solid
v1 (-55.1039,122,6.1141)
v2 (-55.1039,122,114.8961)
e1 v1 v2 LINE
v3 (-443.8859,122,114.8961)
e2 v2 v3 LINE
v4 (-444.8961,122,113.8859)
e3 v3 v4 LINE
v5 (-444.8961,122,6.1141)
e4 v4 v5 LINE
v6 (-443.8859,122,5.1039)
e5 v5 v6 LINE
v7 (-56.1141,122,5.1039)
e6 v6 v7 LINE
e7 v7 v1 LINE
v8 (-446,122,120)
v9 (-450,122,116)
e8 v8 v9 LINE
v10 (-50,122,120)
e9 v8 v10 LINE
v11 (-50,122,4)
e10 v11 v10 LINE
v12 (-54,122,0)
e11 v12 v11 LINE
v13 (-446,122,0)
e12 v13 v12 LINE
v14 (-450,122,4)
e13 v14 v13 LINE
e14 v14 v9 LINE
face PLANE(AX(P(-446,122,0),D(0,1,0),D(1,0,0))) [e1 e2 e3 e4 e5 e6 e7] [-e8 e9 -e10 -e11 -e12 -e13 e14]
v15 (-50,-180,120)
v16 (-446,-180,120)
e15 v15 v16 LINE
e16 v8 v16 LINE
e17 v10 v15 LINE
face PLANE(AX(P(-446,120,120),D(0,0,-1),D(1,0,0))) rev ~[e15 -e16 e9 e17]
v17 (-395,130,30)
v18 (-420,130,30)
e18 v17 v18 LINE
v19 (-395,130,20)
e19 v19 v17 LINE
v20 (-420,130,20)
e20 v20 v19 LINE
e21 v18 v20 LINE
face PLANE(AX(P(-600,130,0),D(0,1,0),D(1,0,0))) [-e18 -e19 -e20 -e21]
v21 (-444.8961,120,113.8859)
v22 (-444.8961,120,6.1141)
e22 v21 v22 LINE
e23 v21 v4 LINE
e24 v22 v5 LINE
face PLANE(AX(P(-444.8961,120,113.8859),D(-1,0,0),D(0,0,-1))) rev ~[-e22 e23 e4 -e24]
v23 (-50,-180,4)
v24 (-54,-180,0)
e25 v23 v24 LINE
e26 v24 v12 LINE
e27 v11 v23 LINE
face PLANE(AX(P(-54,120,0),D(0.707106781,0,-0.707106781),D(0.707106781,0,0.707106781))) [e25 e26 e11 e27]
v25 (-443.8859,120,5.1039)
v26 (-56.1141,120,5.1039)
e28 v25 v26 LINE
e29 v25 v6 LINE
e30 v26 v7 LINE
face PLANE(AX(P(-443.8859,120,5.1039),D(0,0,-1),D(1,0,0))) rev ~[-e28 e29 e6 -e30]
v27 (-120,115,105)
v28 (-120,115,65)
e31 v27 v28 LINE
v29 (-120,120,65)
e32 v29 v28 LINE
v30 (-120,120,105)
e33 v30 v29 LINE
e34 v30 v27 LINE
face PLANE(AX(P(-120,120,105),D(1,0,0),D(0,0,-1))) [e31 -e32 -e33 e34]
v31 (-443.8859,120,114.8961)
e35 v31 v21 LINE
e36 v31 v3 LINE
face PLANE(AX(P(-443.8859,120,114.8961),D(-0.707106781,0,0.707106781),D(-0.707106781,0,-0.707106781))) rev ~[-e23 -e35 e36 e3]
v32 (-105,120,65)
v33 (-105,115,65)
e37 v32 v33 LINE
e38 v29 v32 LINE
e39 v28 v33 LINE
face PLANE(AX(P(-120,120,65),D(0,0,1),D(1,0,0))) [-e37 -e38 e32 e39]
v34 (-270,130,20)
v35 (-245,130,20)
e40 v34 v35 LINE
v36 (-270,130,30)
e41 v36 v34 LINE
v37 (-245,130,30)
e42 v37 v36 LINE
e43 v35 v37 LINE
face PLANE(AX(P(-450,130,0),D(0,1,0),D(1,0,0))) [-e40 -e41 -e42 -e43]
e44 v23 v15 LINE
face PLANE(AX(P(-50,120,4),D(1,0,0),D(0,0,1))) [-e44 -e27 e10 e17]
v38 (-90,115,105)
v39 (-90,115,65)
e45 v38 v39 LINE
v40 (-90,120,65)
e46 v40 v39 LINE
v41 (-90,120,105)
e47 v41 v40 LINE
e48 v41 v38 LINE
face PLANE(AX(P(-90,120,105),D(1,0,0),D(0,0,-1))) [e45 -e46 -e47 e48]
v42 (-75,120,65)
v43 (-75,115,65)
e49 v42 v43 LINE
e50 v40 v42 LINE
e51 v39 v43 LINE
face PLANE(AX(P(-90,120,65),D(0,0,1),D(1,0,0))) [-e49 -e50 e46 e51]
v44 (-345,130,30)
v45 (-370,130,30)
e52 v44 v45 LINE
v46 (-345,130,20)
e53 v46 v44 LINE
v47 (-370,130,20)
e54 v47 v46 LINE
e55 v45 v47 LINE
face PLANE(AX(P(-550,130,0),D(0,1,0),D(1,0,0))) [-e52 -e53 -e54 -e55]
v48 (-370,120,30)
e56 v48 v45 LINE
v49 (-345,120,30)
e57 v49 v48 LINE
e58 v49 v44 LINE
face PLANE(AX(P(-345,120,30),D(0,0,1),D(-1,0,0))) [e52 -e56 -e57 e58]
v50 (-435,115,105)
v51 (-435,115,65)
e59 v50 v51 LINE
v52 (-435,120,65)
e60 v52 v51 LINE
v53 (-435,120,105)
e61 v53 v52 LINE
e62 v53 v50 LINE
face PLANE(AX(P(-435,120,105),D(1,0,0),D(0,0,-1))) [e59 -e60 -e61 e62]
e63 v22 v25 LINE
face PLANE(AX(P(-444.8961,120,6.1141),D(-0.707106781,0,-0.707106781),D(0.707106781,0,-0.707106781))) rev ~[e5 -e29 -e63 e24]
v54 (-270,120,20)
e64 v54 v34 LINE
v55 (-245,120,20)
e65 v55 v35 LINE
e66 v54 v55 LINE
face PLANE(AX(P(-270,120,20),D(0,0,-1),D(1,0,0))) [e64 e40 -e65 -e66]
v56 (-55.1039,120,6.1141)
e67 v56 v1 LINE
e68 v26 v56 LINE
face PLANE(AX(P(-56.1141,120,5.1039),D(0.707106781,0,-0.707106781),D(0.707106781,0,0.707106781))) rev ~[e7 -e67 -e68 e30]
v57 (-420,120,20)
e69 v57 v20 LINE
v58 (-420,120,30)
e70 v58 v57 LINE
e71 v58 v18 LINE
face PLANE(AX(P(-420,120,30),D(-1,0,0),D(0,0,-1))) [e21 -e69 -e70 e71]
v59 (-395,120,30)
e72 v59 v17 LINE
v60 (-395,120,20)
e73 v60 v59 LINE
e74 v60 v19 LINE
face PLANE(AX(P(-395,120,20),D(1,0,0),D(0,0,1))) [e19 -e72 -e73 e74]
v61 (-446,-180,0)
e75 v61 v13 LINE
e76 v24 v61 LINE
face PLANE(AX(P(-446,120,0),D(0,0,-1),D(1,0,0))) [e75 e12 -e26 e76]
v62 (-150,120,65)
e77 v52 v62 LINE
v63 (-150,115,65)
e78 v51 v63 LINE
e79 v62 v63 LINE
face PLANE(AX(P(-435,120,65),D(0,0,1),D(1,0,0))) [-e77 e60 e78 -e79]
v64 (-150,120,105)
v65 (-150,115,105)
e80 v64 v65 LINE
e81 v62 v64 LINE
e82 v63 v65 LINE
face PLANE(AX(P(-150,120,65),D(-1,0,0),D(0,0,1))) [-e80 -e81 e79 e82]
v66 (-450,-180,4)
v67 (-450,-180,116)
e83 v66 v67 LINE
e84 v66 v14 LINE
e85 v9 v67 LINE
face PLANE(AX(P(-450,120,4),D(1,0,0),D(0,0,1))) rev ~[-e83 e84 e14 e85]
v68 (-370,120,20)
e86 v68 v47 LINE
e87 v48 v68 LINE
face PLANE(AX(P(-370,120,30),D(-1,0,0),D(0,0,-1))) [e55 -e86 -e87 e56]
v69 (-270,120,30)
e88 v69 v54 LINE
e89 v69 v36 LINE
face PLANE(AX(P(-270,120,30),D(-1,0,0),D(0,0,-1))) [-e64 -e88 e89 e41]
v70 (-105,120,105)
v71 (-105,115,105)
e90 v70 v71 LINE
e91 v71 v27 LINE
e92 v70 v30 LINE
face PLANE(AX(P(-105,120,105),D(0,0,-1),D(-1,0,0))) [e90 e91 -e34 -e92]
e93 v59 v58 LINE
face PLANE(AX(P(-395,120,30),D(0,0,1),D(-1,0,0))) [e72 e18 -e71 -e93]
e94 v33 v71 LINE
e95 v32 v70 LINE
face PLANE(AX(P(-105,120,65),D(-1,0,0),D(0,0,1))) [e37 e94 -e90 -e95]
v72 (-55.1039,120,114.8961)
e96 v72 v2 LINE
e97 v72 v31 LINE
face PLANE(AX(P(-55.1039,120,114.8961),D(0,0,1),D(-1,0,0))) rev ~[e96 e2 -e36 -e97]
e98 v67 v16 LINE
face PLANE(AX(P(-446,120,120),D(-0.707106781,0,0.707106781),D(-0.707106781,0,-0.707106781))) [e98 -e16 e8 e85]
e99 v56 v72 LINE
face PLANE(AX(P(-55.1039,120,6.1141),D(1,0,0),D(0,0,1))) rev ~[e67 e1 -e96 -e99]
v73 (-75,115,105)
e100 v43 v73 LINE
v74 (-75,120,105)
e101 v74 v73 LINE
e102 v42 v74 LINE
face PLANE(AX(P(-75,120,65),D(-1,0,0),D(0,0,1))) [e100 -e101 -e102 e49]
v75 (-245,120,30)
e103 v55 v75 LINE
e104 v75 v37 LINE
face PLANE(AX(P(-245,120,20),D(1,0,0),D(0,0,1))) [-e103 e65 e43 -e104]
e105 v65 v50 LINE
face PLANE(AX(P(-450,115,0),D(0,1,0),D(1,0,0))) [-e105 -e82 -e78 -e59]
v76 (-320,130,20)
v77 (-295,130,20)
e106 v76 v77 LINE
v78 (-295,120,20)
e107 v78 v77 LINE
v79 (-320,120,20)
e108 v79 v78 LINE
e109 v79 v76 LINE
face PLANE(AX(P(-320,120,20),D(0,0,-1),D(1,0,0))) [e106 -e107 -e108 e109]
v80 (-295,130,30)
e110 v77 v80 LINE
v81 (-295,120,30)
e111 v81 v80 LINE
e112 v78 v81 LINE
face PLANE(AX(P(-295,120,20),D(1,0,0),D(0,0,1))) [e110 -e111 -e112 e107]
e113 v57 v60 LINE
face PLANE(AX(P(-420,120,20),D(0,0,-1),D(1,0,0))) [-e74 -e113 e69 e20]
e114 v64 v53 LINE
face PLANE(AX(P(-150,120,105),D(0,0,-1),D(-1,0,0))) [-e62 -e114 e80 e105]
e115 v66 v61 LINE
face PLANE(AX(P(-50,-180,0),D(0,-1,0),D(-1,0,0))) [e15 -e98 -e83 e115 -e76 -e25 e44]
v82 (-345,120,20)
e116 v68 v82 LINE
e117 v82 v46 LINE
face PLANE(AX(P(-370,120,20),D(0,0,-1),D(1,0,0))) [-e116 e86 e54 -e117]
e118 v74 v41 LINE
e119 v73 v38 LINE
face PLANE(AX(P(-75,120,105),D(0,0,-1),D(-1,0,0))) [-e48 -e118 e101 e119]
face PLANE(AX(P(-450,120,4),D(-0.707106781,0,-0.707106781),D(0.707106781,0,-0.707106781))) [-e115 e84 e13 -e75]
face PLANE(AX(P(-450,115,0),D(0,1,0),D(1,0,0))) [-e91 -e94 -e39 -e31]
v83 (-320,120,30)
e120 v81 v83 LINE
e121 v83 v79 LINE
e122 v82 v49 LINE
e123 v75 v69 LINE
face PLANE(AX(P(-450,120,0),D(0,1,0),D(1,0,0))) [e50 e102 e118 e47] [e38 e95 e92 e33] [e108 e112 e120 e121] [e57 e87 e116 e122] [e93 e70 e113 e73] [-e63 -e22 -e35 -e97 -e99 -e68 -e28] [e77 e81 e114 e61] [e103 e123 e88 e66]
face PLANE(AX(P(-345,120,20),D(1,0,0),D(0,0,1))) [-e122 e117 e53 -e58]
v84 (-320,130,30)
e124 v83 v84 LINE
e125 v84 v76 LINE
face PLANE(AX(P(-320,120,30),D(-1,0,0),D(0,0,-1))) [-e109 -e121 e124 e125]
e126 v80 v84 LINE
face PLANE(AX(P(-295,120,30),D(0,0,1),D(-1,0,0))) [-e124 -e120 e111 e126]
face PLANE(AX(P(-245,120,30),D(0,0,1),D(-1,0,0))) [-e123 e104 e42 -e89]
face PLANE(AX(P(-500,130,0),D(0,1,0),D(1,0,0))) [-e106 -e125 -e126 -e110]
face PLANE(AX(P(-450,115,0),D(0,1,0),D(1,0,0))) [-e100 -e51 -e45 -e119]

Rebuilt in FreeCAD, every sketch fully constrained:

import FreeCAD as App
import Part
import Sketcher
from FreeCAD import Vector


def edges_at(feature, points):
    """Names of the edges that pass closest to the given points."""
    edges = feature.Shape.Edges
    near = lambda p: min(range(len(edges)), key=lambda i: edges[i].distToShape(Part.Vertex(*p))[0])
    return sorted({f"Edge{near(p) + 1}" for p in points})


def add_polygon(sketch, points):
    """Adds a closed chain of lines whose ends are joined by coincident constraints."""
    first, n = sketch.GeometryCount, len(points)
    for a, b in zip(points, points[1:] + points[:1]):
        sketch.addGeometry(Part.LineSegment(App.Vector(*a, 0), App.Vector(*b, 0)), False)
    for i in range(n):
        sketch.addConstraint(Sketcher.Constraint("Coincident", first + i, 2, first + (i + 1) % n, 1))

doc = App.newDocument("Part")
params = doc.addObject("Spreadsheet::Sheet", "Params")
for row, (alias, value) in enumerate([
    ("sketch1_width", "400 mm"),
    ("sketch1_height", "300 mm"),
    ("pad1_length", "120 mm"),
    ("sketch2_width", "25 mm"),
    ("sketch2_height", "10 mm"),
    ("pad2_length", "10 mm"),
    ("linearpattern_pitch", "50 mm"),
    ("sketch3_width", "15 mm"),
    ("sketch3_width2", "285 mm"),
    ("sketch3_height", "40 mm"),
    ("pocket1_length", "5 mm"),
    ("chamfer_size", "4 mm"),
    ("sketch4_width", "392 mm"),
    ("sketch4_width2", "396 mm"),
    ("sketch4_height", "112 mm"),
    ("pad3_length", "2 mm"),
], start=1):
    params.set(f"A{row}", alias)
    params.set(f"B{row}", "=" + value)
    params.setAlias(f"B{row}", alias)

body = doc.addObject("PartDesign::Body", "Body")

sketch1 = doc.addObject("Sketcher::SketchObject", "Sketch")
body.addObject(sketch1)
sketch1.AttachmentSupport = (doc.XY_Plane, [""])
sketch1.MapMode = "FlatFace"
add_polygon(sketch1, [(-450, -180), (-50, -180), (-50, 120), (-450, 120)])
sketch1.addConstraint([
    Sketcher.Constraint("Horizontal", 0),
    Sketcher.Constraint("Vertical", 1),
    Sketcher.Constraint("Horizontal", 2),
    Sketcher.Constraint("Vertical", 3),
    Sketcher.Constraint("DistanceX", 0, 1, 0, 2, 400.0),
    Sketcher.Constraint("DistanceY", 1, 1, 1, 2, 300.0),
    Sketcher.Constraint("DistanceX", 0, 2, -1, 1, 50.0),
    Sketcher.Constraint("DistanceY", -1, 1, 1, 2, 120.0),
])
sketch1.setExpression("Constraints[8]", "Params.sketch1_width")
sketch1.setExpression("Constraints[9]", "Params.sketch1_height")
pad1 = doc.addObject("PartDesign::Pad", "Pad")
body.addObject(pad1)
pad1.Profile = sketch1
pad1.setExpression("Length", "Params.pad1_length")

sketch2 = doc.addObject("Sketcher::SketchObject", "Sketch001")
body.addObject(sketch2)
sketch2.AttachmentSupport = (doc.XZ_Plane, [""])
sketch2.MapMode = "FlatFace"
sketch2.AttachmentOffset = App.Placement(Vector(0, 0, -120), App.Rotation())
add_polygon(sketch2, [(-270, 30), (-245, 30), (-245, 20), (-270, 20)])
sketch2.addConstraint([
    Sketcher.Constraint("Horizontal", 0),
    Sketcher.Constraint("Vertical", 1),
    Sketcher.Constraint("Horizontal", 2),
    Sketcher.Constraint("Vertical", 3),
    Sketcher.Constraint("DistanceX", 0, 1, 0, 2, 25.0),
    Sketcher.Constraint("DistanceY", 1, 2, 1, 1, 10.0),
    Sketcher.Constraint("DistanceY", -1, 1, 1, 2, 20.0),
    Sketcher.Constraint("DistanceX", 0, 2, -1, 1, 245.0),
])
sketch2.setExpression("Constraints[8]", "Params.sketch2_width")
sketch2.setExpression("Constraints[9]", "Params.sketch2_height")
pad2 = doc.addObject("PartDesign::Pad", "Pad001")
body.addObject(pad2)
pad2.Profile = sketch2
pad2.setExpression("Length", "Params.pad2_length")
pad2.Reversed = True
doc.recompute()

linearpattern = doc.addObject("PartDesign::LinearPattern", "LinearPattern")
body.addObject(linearpattern)
linearpattern.Originals = [pad2]
linearpattern.Direction = (doc.X_Axis, [""])
linearpattern.Mode = "offset"
linearpattern.setExpression("Offset", "Params.linearpattern_pitch")
linearpattern.Occurrences = 4
linearpattern.Reversed = True
body.Tip = linearpattern

sketch3 = doc.addObject("Sketcher::SketchObject", "Sketch002")
body.addObject(sketch3)
sketch3.AttachmentSupport = (doc.XZ_Plane, [""])
sketch3.MapMode = "FlatFace"
sketch3.AttachmentOffset = App.Placement(Vector(0, 0, -120), App.Rotation())
add_polygon(sketch3, [(-150, 65), (-435, 65), (-435, 105), (-150, 105)])
add_polygon(sketch3, [(-105, 65), (-120, 65), (-120, 105), (-105, 105)])
add_polygon(sketch3, [(-75, 65), (-90, 65), (-90, 105), (-75, 105)])
sketch3.addConstraint([
    Sketcher.Constraint("Horizontal", 0),
    Sketcher.Constraint("Vertical", 1),
    Sketcher.Constraint("Horizontal", 2),
    Sketcher.Constraint("Vertical", 3),
    Sketcher.Constraint("Horizontal", 4),
    Sketcher.Constraint("Vertical", 5),
    Sketcher.Constraint("Horizontal", 6),
    Sketcher.Constraint("Vertical", 7),
    Sketcher.Constraint("Horizontal", 8),
    Sketcher.Constraint("Vertical", 9),
    Sketcher.Constraint("Horizontal", 10),
    Sketcher.Constraint("Vertical", 11),
    Sketcher.Constraint("Horizontal", 3, 2, 4, 2),
    Sketcher.Constraint("Horizontal", 2, 2, 5, 2),
    Sketcher.Constraint("Horizontal", 7, 2, 8, 2),
    Sketcher.Constraint("Horizontal", 6, 2, 9, 2),
    Sketcher.Constraint("Equal", 6, 8),
    Sketcher.Constraint("DistanceX", 4, 2, 4, 1, 15.0),
    Sketcher.Constraint("DistanceY", -1, 1, 0, 2, 65.0),
    Sketcher.Constraint("DistanceX", 3, 2, 4, 2, 30.0),
    Sketcher.Constraint("DistanceX", 7, 2, 8, 2, 15.0),
    Sketcher.Constraint("DistanceX", 0, 2, 0, 1, 285.0),
    Sketcher.Constraint("DistanceY", 1, 1, 1, 2, 40.0),
    Sketcher.Constraint("DistanceX", 0, 2, -1, 1, 435.0),
])
sketch3.setExpression("Constraints[29]", "Params.sketch3_width")
sketch3.setExpression("Constraints[33]", "Params.sketch3_width2")
sketch3.setExpression("Constraints[34]", "Params.sketch3_height")
pocket1 = doc.addObject("PartDesign::Pocket", "Pocket")
body.addObject(pocket1)
pocket1.Profile = sketch3
pocket1.setExpression("Length", "Params.pocket1_length")
pocket1.Reversed = True
doc.recompute()

chamfer = doc.addObject("PartDesign::Chamfer", "Chamfer")
body.addObject(chamfer)
chamfer.Base = (pocket1, edges_at(pocket1, [(-450, -30, 120), (-450, -30, 0), (-50, -30, 0)]))
chamfer.setExpression("Size", "Params.chamfer_size")

sketch4 = doc.addObject("Sketcher::SketchObject", "Sketch003")
body.addObject(sketch4)
sketch4.AttachmentSupport = (doc.XZ_Plane, [""])
sketch4.MapMode = "FlatFace"
sketch4.AttachmentOffset = App.Placement(Vector(0, 0, -120), App.Rotation())
add_polygon(sketch4, [(-50, 4), (-54, 0), (-446, 0), (-450, 4), (-450, 116), (-446, 120), (-50, 120)])
add_polygon(sketch4, [(-443.9, 5.1), (-56.1, 5.1), (-55.1, 6.1), (-55.1, 114.9), (-443.9, 114.9), (-444.9, 113.9), (-444.9, 6.1)])
sketch4.addConstraint([
    Sketcher.Constraint("Horizontal", 1),
    Sketcher.Constraint("Vertical", 3),
    Sketcher.Constraint("Horizontal", 5),
    Sketcher.Constraint("Vertical", 6),
    Sketcher.Constraint("Horizontal", 7),
    Sketcher.Constraint("Vertical", 9),
    Sketcher.Constraint("Horizontal", 10),
    Sketcher.Constraint("Vertical", 12),
    Sketcher.Constraint("PointOnObject", 0, 2, -1),
    Sketcher.Constraint("Perpendicular", 0, 2),
    Sketcher.Constraint("Perpendicular", 2, 4),
    Sketcher.Constraint("Parallel", 4, 8),
    Sketcher.Constraint("Parallel", 8, 11),
    Sketcher.Constraint("Perpendicular", 11, 13),
    Sketcher.Constraint("Horizontal", 2, 2, 6, 2),
    Sketcher.Constraint("Horizontal", 8, 2, 12, 2),
    Sketcher.Constraint("Vertical", 1, 2, 4, 2),
    Sketcher.Constraint("Vertical", 10, 2, 13, 2),
    Sketcher.Constraint("Equal", 0, 2),
    Sketcher.Constraint("DistanceX", 1, 2, 1, 1, 392.0),
    Sketcher.Constraint("DistanceX", 5, 1, 5, 2, 396.0),
    Sketcher.Constraint("DistanceY", 3, 1, 3, 2, 112.0),
    Sketcher.Constraint("DistanceX", 0, 2, -1, 1, 54.0),
    Sketcher.Constraint("DistanceX", 10, 2, 10, 1, 388.782),
    Sketcher.Constraint("DistanceY", 9, 1, 9, 2, 108.782),
    Sketcher.Constraint("DistanceX", 7, 1, 7, 2, 387.7718),
    Sketcher.Constraint("DistanceX", 7, 2, -1, 1, 56.114),
    Sketcher.Constraint("DistanceY", -1, 1, 7, 2, 5.104),
])
sketch4.setExpression("Constraints[33]", "Params.sketch4_width")
sketch4.setExpression("Constraints[34]", "Params.sketch4_width2")
sketch4.setExpression("Constraints[35]", "Params.sketch4_height")
pad3 = doc.addObject("PartDesign::Pad", "Pad002")
body.addObject(pad3)
pad3.Profile = sketch4
pad3.setExpression("Length", "Params.pad3_length")
pad3.Reversed = True

doc.recompute()
